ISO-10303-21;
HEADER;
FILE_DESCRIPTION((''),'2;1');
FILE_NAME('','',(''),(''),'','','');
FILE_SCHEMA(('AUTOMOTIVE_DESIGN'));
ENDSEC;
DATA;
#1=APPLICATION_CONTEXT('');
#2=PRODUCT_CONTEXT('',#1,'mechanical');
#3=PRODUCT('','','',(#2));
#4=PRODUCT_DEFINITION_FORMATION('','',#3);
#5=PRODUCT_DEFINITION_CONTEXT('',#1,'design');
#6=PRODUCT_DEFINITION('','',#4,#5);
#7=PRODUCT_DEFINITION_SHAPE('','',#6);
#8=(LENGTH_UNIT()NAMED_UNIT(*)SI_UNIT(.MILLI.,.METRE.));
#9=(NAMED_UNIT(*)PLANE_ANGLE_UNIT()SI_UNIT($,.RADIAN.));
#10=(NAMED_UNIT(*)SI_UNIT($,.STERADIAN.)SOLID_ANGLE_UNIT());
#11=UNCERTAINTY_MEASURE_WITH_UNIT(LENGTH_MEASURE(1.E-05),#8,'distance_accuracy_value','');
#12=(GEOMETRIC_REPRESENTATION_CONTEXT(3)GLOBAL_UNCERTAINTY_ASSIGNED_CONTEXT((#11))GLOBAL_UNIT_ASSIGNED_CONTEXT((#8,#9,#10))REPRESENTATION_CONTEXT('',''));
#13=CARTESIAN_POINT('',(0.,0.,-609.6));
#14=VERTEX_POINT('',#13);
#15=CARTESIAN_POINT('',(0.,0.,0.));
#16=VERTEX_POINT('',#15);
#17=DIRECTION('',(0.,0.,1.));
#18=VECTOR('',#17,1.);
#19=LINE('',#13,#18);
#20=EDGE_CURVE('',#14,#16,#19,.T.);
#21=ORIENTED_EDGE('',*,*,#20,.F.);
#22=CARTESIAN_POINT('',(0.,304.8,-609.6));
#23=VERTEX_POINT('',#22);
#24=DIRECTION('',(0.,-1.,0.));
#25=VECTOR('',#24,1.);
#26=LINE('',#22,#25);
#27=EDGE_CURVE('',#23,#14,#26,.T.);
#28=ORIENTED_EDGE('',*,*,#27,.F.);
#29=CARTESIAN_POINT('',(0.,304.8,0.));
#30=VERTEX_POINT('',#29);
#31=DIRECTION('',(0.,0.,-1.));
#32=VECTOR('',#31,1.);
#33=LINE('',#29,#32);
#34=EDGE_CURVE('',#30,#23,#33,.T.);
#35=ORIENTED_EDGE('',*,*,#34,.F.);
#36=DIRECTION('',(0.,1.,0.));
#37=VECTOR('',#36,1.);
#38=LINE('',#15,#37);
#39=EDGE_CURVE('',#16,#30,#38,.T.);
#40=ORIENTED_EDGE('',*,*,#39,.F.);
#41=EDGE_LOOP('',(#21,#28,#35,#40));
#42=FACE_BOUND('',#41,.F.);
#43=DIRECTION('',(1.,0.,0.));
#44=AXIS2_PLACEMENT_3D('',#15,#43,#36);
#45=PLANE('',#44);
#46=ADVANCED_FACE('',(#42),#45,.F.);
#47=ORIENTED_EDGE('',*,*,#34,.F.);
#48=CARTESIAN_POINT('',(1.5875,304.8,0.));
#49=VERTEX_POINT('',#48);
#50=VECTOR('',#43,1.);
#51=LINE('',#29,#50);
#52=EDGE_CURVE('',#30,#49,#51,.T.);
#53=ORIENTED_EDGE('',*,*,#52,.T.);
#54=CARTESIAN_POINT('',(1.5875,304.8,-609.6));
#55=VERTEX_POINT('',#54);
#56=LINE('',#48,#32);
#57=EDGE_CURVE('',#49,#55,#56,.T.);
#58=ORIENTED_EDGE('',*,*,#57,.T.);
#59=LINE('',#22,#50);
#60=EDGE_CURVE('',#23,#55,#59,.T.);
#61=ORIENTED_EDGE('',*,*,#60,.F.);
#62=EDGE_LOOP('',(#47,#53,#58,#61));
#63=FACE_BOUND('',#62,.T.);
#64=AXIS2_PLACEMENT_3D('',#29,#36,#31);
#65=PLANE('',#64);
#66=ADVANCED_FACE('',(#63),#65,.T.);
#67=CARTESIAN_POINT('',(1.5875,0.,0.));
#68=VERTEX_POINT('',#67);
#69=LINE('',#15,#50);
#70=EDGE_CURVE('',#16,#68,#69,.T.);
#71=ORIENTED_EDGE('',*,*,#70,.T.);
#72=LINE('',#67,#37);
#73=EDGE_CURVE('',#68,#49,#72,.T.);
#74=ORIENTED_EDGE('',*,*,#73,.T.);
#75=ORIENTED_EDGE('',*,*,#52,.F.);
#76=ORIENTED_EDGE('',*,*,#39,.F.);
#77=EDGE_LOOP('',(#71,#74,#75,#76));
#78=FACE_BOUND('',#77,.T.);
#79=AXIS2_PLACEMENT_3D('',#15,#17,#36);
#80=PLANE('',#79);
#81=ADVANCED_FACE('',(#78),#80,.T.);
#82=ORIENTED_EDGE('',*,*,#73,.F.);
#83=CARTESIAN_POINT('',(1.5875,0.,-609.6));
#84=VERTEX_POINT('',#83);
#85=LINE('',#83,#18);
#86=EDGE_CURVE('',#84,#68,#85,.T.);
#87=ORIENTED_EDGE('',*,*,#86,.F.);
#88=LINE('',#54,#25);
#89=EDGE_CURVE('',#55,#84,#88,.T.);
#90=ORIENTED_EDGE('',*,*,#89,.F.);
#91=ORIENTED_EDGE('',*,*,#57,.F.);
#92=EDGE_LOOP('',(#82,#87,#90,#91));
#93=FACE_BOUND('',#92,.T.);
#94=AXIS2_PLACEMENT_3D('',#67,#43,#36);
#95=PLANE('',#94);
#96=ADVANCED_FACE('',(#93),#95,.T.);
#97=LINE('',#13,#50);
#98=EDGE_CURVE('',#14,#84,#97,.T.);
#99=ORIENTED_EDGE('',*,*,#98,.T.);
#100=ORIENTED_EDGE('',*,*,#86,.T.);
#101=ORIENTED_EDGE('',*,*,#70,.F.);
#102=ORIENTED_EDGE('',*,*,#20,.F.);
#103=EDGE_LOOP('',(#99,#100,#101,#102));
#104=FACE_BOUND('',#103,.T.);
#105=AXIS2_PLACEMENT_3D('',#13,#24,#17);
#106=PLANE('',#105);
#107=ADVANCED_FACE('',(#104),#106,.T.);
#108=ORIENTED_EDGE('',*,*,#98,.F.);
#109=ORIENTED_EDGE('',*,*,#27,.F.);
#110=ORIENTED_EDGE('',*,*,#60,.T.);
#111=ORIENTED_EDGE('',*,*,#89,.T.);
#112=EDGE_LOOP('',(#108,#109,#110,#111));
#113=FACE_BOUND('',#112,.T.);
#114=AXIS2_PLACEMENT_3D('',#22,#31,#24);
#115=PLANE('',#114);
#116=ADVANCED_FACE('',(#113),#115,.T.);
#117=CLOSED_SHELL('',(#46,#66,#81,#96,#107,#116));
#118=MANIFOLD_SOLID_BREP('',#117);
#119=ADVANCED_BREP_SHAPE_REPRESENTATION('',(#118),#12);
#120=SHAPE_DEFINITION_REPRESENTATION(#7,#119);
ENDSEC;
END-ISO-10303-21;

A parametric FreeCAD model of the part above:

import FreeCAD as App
import Part
import Sketcher
Q = App.Units.Quantity

doc = App.newDocument("Part")
body = doc.addObject("PartDesign::Body", "Body")

sketch1 = body.newObject("Sketcher::SketchObject", "Sketch")
sketch1.AttachmentSupport = (doc.getObject("YZ_Plane"), [""])
sketch1.MapMode = "FlatFace"
sketch1.addGeometry([
    Part.LineSegment(App.Vector(304.8, 0, 0), App.Vector(0, 0, 0)),
    Part.LineSegment(App.Vector(0, 0, 0), App.Vector(0, -609.6, 0)),
    Part.LineSegment(App.Vector(0, -609.6, 0), App.Vector(304.8, -609.6, 0)),
    Part.LineSegment(App.Vector(304.8, -609.6, 0), App.Vector(304.8, 0, 0)),
], False)
sketch1.addConstraint([
    Sketcher.Constraint("Coincident", 0, 2, 1, 1),
    Sketcher.Constraint("Coincident", 1, 2, 2, 1),
    Sketcher.Constraint("Coincident", 2, 2, 3, 1),
    Sketcher.Constraint("Coincident", 3, 2, 0, 1),
    Sketcher.Constraint("Horizontal", 0),
    Sketcher.Constraint("Vertical", 1),
    Sketcher.Constraint("Horizontal", 2),
    Sketcher.Constraint("Vertical", 3),
    Sketcher.Constraint("Coincident", 0, 2, -1, 1),
    Sketcher.Constraint("DistanceX", 0, 2, 0, 1, Q("12 in")),
    Sketcher.Constraint("DistanceY", 1, 2, 1, 1, Q("24 in")),
])
pad1 = body.newObject("PartDesign::Pad", "Pad")
pad1.Profile = sketch1
pad1.Length = Q("0.0625 in")

doc.recompute()
